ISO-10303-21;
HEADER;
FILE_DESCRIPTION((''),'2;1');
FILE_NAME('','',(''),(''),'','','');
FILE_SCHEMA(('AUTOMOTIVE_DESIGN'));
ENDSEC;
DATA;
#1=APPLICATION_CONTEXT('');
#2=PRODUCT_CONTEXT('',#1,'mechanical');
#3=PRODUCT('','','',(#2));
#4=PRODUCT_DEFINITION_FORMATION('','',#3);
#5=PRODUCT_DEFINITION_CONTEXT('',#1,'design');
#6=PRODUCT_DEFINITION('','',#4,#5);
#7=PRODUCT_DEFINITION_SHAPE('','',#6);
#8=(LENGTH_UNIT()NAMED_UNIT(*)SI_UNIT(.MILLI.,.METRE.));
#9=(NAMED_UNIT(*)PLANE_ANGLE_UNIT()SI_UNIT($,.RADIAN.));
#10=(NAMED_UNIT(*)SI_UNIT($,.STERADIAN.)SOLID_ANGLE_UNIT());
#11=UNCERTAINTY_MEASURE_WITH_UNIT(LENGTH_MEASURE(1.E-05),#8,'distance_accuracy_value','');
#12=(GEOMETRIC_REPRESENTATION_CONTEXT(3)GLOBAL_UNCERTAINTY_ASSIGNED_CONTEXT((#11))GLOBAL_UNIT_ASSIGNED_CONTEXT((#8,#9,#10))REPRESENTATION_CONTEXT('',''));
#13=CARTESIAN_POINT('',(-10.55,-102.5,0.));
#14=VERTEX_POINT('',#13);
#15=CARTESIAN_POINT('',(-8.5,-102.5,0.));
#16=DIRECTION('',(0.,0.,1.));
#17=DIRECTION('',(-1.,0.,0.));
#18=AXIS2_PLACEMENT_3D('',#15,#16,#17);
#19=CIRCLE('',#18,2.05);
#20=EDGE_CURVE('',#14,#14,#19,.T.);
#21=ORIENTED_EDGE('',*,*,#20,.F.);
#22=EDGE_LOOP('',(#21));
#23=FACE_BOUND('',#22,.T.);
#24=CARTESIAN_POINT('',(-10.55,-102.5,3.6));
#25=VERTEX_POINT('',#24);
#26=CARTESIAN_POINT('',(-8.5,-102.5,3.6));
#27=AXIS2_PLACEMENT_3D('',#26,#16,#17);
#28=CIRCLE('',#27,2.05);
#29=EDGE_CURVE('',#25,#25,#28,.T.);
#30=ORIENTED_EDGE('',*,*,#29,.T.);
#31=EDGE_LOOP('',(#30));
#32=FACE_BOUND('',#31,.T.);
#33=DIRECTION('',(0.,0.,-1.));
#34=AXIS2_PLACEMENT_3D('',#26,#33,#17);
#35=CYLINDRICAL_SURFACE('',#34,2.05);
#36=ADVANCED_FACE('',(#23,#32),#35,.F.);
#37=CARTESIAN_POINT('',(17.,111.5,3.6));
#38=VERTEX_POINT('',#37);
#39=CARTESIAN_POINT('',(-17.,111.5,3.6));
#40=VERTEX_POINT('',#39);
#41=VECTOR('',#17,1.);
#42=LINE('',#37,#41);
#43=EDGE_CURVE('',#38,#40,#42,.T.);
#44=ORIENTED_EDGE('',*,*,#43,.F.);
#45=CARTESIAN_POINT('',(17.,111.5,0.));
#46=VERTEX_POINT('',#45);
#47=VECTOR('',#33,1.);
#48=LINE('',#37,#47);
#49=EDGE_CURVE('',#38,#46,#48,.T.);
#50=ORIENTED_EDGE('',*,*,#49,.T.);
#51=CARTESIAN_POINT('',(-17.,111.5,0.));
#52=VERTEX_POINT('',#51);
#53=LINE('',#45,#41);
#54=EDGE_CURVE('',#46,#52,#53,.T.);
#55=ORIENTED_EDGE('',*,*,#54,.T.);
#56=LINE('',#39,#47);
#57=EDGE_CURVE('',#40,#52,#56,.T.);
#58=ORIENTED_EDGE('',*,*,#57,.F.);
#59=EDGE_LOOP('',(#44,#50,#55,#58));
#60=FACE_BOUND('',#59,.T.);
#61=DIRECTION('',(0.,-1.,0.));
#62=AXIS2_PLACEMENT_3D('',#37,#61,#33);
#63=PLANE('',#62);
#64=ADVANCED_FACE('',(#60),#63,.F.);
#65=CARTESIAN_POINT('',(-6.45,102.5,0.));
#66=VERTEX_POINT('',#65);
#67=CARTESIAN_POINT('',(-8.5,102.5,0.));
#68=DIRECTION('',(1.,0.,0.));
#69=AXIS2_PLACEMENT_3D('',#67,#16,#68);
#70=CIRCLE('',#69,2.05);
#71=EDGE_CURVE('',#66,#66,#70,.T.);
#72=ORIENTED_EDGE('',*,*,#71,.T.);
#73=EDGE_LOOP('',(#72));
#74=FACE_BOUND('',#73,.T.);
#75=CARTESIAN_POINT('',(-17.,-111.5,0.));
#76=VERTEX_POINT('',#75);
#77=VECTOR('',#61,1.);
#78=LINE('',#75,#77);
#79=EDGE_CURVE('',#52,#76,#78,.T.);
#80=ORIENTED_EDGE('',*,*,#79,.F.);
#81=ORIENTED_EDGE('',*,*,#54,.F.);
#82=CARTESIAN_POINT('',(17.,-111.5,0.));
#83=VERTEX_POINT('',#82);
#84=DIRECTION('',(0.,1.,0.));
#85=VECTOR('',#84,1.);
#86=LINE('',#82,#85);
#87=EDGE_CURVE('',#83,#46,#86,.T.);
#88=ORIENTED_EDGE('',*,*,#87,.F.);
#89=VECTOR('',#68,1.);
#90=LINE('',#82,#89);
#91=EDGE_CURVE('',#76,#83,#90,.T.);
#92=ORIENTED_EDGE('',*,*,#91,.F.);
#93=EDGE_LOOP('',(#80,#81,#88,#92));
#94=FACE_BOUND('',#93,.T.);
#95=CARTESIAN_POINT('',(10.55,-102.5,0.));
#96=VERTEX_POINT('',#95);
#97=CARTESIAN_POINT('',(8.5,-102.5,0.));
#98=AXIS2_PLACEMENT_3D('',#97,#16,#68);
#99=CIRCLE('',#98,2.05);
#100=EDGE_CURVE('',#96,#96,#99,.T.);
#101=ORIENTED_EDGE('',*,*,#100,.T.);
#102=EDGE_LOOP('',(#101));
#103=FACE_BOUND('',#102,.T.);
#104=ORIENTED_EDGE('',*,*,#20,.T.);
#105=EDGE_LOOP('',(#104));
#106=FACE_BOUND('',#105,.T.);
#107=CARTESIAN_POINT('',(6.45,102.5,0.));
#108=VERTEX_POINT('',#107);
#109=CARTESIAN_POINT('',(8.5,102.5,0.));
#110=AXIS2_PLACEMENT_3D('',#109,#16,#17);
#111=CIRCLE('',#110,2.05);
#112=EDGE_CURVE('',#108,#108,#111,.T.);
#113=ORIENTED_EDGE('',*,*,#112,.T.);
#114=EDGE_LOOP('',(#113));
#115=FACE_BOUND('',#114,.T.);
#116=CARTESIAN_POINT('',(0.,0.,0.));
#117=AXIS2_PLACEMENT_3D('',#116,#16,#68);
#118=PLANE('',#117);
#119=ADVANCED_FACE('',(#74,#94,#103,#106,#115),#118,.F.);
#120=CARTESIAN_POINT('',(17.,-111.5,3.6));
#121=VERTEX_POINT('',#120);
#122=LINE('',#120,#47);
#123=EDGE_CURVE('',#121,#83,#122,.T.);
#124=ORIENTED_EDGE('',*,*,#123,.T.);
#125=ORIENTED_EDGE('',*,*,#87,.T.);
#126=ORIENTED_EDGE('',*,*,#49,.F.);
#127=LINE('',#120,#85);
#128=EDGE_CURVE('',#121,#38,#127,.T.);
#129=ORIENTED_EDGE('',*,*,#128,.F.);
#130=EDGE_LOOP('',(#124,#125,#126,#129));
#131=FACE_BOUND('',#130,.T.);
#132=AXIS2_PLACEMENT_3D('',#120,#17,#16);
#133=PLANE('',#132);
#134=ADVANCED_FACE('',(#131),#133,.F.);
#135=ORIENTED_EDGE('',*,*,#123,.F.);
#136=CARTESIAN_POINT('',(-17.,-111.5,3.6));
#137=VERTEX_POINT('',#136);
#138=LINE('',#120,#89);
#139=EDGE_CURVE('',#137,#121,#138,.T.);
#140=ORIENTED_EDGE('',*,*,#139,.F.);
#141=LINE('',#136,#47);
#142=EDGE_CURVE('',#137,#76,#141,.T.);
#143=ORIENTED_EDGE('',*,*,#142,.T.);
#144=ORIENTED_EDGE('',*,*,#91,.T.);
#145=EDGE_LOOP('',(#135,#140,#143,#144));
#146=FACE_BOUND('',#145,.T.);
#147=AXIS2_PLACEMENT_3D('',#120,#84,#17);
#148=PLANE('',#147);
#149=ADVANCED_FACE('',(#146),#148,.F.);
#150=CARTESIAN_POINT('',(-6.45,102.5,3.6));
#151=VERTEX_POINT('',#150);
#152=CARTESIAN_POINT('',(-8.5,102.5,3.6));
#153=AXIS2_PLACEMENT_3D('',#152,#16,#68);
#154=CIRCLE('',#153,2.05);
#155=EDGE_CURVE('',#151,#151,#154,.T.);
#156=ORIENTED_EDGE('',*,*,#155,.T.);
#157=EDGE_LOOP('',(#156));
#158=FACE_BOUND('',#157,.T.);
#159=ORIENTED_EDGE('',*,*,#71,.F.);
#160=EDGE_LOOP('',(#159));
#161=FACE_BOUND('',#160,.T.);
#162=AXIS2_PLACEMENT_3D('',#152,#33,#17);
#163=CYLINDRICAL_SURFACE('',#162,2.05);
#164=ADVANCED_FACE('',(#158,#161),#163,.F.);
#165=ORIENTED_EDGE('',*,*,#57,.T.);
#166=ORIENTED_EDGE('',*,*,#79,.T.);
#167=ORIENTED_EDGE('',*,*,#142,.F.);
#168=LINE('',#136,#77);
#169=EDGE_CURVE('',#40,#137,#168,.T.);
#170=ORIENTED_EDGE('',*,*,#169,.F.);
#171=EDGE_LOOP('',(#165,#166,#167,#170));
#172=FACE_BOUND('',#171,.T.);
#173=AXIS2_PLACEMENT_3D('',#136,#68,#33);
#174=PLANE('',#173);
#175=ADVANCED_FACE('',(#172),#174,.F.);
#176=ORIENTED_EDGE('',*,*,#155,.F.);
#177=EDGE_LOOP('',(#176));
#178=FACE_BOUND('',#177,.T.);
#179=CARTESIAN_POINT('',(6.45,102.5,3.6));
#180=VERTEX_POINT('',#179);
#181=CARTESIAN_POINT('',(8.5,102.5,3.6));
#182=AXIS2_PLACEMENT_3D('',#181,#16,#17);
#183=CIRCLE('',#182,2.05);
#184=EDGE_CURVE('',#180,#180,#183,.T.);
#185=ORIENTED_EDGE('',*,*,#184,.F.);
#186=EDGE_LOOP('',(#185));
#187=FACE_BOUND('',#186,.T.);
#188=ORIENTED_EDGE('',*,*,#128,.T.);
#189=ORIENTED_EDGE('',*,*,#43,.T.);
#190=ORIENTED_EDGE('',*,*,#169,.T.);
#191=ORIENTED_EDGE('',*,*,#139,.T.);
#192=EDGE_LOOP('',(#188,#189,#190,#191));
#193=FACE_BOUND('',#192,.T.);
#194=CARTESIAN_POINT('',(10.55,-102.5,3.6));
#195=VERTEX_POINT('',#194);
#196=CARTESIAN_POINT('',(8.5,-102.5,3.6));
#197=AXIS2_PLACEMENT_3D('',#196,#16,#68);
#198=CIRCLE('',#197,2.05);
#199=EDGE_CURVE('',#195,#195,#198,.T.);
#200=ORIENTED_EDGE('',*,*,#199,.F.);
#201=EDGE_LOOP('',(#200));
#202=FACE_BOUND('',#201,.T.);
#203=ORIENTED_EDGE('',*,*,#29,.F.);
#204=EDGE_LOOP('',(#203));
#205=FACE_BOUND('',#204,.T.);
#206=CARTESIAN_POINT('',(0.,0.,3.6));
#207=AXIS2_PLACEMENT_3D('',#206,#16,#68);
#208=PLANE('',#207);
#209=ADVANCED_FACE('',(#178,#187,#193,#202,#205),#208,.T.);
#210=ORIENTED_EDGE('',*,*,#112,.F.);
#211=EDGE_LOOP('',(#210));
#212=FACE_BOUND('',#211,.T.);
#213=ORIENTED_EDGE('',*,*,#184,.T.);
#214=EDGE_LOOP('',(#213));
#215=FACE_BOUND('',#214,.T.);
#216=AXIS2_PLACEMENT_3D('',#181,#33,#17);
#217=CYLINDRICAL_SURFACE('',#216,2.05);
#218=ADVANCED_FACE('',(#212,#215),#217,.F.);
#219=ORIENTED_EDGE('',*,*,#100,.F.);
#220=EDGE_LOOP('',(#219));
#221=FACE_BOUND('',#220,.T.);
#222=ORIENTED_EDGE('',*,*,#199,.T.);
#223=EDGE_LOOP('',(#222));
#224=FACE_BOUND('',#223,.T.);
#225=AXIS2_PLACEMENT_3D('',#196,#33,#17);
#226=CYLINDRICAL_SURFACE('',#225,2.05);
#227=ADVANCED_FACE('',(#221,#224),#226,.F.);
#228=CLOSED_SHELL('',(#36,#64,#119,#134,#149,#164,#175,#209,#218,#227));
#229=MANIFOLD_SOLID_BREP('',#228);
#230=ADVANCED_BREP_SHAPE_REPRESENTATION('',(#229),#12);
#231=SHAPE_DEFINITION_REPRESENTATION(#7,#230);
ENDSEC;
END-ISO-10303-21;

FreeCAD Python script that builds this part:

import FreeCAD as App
import Part
import Sketcher

V = App.Vector


def add_polygon(sketch, points):
    """Adds a closed chain of lines whose ends are joined by coincident constraints."""
    first, n = sketch.GeometryCount, len(points)
    for a, b in zip(points, points[1:] + points[:1]):
        sketch.addGeometry(Part.LineSegment(App.Vector(*a, 0), App.Vector(*b, 0)), False)
    for i in range(n):
        sketch.addConstraint(Sketcher.Constraint("Coincident", first + i, 2, first + (i + 1) % n, 1))

doc = App.newDocument("Part")
body = doc.addObject("PartDesign::Body", "Body")

# Sketch on XY plane
sketch1 = doc.addObject("Sketcher::SketchObject", "Sketch")
body.addObject(sketch1)
sketch1.AttachmentSupport = (doc.XY_Plane, [""])
sketch1.MapMode = "FlatFace"
add_polygon(sketch1, [(-17, 111.5), (-17, -111.5), (17, -111.5), (17, 111.5)])  # lines 0-3
sketch1.addGeometry(Part.Circle(V(-8.5, -102.5, 0), V(0, 0, 1), 2), False)  # 4
sketch1.addGeometry(Part.Circle(V(8.5, -102.5, 0), V(0, 0, 1), 2), False)  # 5
sketch1.addGeometry(Part.Circle(V(-8.5, 102.5, 0), V(0, 0, 1), 2), False)  # 6
sketch1.addGeometry(Part.Circle(V(8.5, 102.5, 0), V(0, 0, 1), 2), False)  # 7
sketch1.addConstraint([
    Sketcher.Constraint("Vertical", 0),
    Sketcher.Constraint("Horizontal", 1),
    Sketcher.Constraint("Vertical", 2),
    Sketcher.Constraint("Horizontal", 3),
    Sketcher.Constraint("Equal", 4, 5),
    Sketcher.Constraint("Equal", 5, 6),
    Sketcher.Constraint("Equal", 6, 7),
    Sketcher.Constraint("Symmetric", 5, 3, 6, 3, -1, 1),
    Sketcher.Constraint("Symmetric", 4, 3, 7, 3, -1, 1),
    Sketcher.Constraint("Symmetric", 0, 2, 2, 2, -1, 1),
    Sketcher.Constraint("Symmetric", 4, 3, 5, 3, -2),
    Sketcher.Constraint("Diameter", 4, 4.1),
    Sketcher.Constraint("DistanceX", 1, 1, 1, 2, 34.0),
    Sketcher.Constraint("DistanceY", 0, 2, 0, 1, 223.0),
    Sketcher.Constraint("DistanceX", 4, 3, 5, 3, 17.0),
    Sketcher.Constraint("DistanceY", 4, 3, 6, 3, 205.0),
])
pad1 = doc.addObject("PartDesign::Pad", "Pad")
body.addObject(pad1)
pad1.Profile = sketch1
pad1.Length = 3.6

doc.recompute()
